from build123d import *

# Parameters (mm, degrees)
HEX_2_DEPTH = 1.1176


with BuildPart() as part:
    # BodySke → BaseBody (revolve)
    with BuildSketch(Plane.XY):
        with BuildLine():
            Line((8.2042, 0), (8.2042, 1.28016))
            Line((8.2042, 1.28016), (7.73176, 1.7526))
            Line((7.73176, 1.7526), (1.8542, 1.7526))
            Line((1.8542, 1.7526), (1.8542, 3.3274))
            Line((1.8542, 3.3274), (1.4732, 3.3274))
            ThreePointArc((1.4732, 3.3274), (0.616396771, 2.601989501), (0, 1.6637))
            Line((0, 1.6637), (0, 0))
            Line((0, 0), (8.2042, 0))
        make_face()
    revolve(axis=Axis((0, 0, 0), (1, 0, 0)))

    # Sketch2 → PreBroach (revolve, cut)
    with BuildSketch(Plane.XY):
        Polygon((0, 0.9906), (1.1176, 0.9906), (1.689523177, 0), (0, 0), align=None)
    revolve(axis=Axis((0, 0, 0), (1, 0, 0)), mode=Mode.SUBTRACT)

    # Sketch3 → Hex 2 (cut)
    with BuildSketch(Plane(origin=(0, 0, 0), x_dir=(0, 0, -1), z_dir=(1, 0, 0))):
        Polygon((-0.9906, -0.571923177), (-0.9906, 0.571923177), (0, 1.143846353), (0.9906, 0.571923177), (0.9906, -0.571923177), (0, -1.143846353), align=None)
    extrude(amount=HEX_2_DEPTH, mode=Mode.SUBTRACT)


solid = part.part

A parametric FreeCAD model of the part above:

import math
import FreeCAD as App
import Part
import Sketcher
Q = App.Units.Quantity

doc = App.newDocument("Part")
body = doc.addObject("PartDesign::Body", "Body")

# Sketch on XY plane
sketch1 = body.newObject("Sketcher::SketchObject", "Sketch")
sketch1.AttachmentSupport = (doc.getObject("XY_Plane"), [""])
sketch1.MapMode = "FlatFace"
sketch1.addGeometry([
    Part.LineSegment(App.Vector(8.2042, 0, 0), App.Vector(8.2042, 1.28016, 0)),  # 0
    Part.LineSegment(App.Vector(8.2042, 1.28016, 0), App.Vector(7.73176, 1.7526, 0)),  # 1
    Part.LineSegment(App.Vector(7.73176, 1.7526, 0), App.Vector(1.8542, 1.7526, 0)),  # 2
    Part.LineSegment(App.Vector(1.8542, 1.7526, 0), App.Vector(1.8542, 3.3274, 0)),  # 3
    Part.LineSegment(App.Vector(1.8542, 3.3274, 0), App.Vector(1.4732, 3.3274, 0)),  # 4
    Part.ArcOfCircle(Part.Circle(App.Vector(3.55485, 0, 0), App.Vector(0, 0, 1), 3.924902), math.radians(122.030456), math.radians(154.920009)),  # 5
    Part.LineSegment(App.Vector(0, 1.6637, 0), App.Vector(0, 0, 0)),  # 6
    Part.LineSegment(App.Vector(0, 0, 0), App.Vector(8.2042, 0, 0)),  # 7
], False)
sketch1.addConstraint([
    Sketcher.Constraint("Coincident", 0, 2, 1, 1),
    Sketcher.Constraint("Coincident", 1, 2, 2, 1),
    Sketcher.Constraint("Coincident", 2, 2, 3, 1),
    Sketcher.Constraint("Coincident", 3, 2, 4, 1),
    Sketcher.Constraint("Coincident", 4, 2, 5, 1),
    Sketcher.Constraint("Coincident", 5, 2, 6, 1),
    Sketcher.Constraint("Coincident", 6, 2, 7, 1),
    Sketcher.Constraint("Coincident", 7, 2, 0, 1),
    Sketcher.Constraint("Vertical", 0),
    Sketcher.Constraint("Horizontal", 2),
    Sketcher.Constraint("Vertical", 3),
    Sketcher.Constraint("Horizontal", 4),
    Sketcher.Constraint("Vertical", 6),
    Sketcher.Constraint("Horizontal", 7),
    Sketcher.Constraint("Coincident", 6, 2, -1, 1),
    Sketcher.Constraint("PointOnObject", 5, 3, -1),
    Sketcher.Constraint("Angle", 1, Q("135 deg")),
    Sketcher.Constraint("DistanceX", 4, 2, 4, 1, Q("0.015 in")),
    Sketcher.Constraint("DistanceX", 7, 1, 7, 2, Q("0.323 in")),
    Sketcher.Constraint("DistanceY", 3, 1, 3, 2, Q("0.062 in")),
    Sketcher.Constraint("DistanceX", 2, 2, 0, 2, Q("0.25 in")),
    Sketcher.Constraint("DistanceX", 2, 2, 2, 1, Q("0.2314 in")),
    Sketcher.Constraint("DistanceY", 0, 1, 0, 2, Q("0.0504 in")),
    Sketcher.Constraint("DistanceY", 6, 2, 6, 1, Q("0.0655 in")),
])
revolution = body.newObject("PartDesign::Revolution", "Revolution")
revolution.Profile = sketch1
revolution.ReferenceAxis = (sketch1, ["H_Axis"])
revolution.Angle = 360

# Sketch on XY plane
sketch2 = body.newObject("Sketcher::SketchObject", "Sketch001")
sketch2.AttachmentSupport = (doc.getObject("XY_Plane"), [""])
sketch2.MapMode = "FlatFace"
sketch2.addGeometry([
    Part.LineSegment(App.Vector(1.1176, 0.9906, 0), App.Vector(0, 0.9906, 0)),
    Part.LineSegment(App.Vector(0, 0.9906, 0), App.Vector(0, 0, 0)),
    Part.LineSegment(App.Vector(0, 0, 0), App.Vector(1.689523, 0, 0)),
    Part.LineSegment(App.Vector(1.689523, 0, 0), App.Vector(1.1176, 0.9906, 0)),
], False)
sketch2.addConstraint([
    Sketcher.Constraint("Coincident", 0, 2, 1, 1),
    Sketcher.Constraint("Coincident", 1, 2, 2, 1),
    Sketcher.Constraint("Coincident", 2, 2, 3, 1),
    Sketcher.Constraint("Coincident", 3, 2, 0, 1),
    Sketcher.Constraint("Horizontal", 0),
    Sketcher.Constraint("Vertical", 1),
    Sketcher.Constraint("Horizontal", 2),
    Sketcher.Constraint("Coincident", 1, 2, -1, 1),
    Sketcher.Constraint("Angle", 3, Q("120 deg")),
    Sketcher.Constraint("DistanceX", 0, 2, 0, 1, Q("0.044 in")),
    Sketcher.Constraint("DistanceY", 1, 2, 1, 1, Q("0.039 in")),
])
groove = body.newObject("PartDesign::Groove", "Groove")
groove.Profile = sketch2
groove.ReferenceAxis = (sketch2, ["H_Axis"])
groove.Angle = 360

# Sketch on YZ plane
sketch3 = body.newObject("Sketcher::SketchObject", "Sketch002")
sketch3.AttachmentSupport = (doc.getObject("YZ_Plane"), [""])
sketch3.MapMode = "FlatFace"
sketch3.addGeometry([
    Part.LineSegment(App.Vector(0.571923, 0.9906, 0), App.Vector(-0.571923, 0.9906, 0)),  # 0
    Part.LineSegment(App.Vector(-0.571923, 0.9906, 0), App.Vector(-1.143846, 0, 0)),  # 1
    Part.LineSegment(App.Vector(-1.143846, 0, 0), App.Vector(-0.571923, -0.9906, 0)),  # 2
    Part.LineSegment(App.Vector(-0.571923, -0.9906, 0), App.Vector(0.571923, -0.9906, 0)),  # 3
    Part.LineSegment(App.Vector(0.571923, -0.9906, 0), App.Vector(1.143846, 0, 0)),  # 4
    Part.LineSegment(App.Vector(1.143846, 0, 0), App.Vector(0.571923, 0.9906, 0)),  # 5
], False)
sketch3.addConstraint([
    Sketcher.Constraint("Coincident", 0, 2, 1, 1),
    Sketcher.Constraint("Coincident", 1, 2, 2, 1),
    Sketcher.Constraint("Coincident", 2, 2, 3, 1),
    Sketcher.Constraint("Coincident", 3, 2, 4, 1),
    Sketcher.Constraint("Coincident", 4, 2, 5, 1),
    Sketcher.Constraint("Coincident", 5, 2, 0, 1),
    Sketcher.Constraint("Horizontal", 0),
    Sketcher.Constraint("Horizontal", 3),
    Sketcher.Constraint("Symmetric", 0, 2, 3, 2, -1, 1),
    Sketcher.Constraint("Symmetric", 1, 2, 4, 2, -1, 1),
    Sketcher.Constraint("PointOnObject", 1, 2, -1),
    Sketcher.Constraint("Parallel", 2, 5),
    Sketcher.Constraint("Vertical", 0, 2, 2, 2),
    Sketcher.Constraint("Angle", 1, Q("-120 deg")),
    Sketcher.Constraint("DistanceY", -1, 1, 0, 2, Q("0.039 in")),
    Sketcher.Constraint("DistanceX", 0, 2, 0, 1, 1.143846),
])
pocket1 = body.newObject("PartDesign::Pocket", "Pocket")
pocket1.Profile = sketch3
pocket1.Length = Q("0.044 in")
pocket1.Reversed = True

doc.recompute()
